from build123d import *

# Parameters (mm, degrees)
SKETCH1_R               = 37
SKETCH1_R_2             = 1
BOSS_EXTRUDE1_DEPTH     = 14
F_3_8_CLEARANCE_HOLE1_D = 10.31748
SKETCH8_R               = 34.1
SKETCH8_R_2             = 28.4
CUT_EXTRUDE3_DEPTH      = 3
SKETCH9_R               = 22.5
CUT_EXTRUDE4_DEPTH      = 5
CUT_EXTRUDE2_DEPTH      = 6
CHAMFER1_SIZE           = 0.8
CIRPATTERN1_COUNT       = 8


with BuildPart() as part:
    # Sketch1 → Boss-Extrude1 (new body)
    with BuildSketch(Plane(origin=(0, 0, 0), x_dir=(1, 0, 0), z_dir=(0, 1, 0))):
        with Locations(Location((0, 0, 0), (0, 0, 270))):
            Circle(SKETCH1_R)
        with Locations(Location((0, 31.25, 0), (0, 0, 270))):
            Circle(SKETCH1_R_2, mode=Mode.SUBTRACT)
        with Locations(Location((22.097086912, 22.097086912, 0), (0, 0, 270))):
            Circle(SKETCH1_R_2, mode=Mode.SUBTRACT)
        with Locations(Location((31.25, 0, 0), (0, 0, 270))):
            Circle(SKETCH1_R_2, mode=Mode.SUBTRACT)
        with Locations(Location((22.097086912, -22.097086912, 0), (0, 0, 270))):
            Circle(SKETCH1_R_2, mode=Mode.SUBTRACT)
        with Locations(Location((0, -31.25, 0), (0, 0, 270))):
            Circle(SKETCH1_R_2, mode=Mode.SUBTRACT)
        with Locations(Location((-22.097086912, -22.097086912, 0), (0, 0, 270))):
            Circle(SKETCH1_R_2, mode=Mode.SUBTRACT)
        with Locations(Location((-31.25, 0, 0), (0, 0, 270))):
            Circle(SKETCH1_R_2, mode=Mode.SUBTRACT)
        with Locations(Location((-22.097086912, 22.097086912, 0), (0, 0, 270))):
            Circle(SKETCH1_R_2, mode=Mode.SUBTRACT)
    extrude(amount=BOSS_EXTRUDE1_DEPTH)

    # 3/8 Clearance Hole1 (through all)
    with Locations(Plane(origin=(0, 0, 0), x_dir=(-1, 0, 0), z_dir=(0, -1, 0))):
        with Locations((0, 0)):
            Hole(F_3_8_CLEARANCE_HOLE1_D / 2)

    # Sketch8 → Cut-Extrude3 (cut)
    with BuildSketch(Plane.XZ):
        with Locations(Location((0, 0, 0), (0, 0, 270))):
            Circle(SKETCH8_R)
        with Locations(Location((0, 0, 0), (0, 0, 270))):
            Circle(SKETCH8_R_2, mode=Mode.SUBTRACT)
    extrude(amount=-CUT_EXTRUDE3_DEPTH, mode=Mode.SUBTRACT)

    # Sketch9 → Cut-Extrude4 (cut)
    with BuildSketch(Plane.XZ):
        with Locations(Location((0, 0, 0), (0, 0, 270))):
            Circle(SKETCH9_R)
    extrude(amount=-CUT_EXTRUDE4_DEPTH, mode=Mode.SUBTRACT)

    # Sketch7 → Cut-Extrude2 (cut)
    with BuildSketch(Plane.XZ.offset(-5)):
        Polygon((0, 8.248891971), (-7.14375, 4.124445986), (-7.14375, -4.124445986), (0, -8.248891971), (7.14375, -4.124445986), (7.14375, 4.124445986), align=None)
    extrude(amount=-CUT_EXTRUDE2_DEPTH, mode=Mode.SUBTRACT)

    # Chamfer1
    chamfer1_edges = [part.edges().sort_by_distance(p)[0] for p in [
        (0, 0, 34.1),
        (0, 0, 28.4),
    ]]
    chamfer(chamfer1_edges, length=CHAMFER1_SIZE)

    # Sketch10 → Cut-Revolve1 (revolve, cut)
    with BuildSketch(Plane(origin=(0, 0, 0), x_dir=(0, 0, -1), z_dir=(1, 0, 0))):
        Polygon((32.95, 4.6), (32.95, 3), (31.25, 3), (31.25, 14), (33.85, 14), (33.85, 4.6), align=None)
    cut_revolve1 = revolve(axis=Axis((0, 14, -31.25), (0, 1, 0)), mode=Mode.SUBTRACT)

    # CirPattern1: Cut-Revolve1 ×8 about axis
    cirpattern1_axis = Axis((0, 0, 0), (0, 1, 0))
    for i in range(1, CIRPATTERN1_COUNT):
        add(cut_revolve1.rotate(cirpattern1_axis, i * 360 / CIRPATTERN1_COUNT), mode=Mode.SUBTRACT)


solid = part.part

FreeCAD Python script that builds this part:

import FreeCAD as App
import Part
import Sketcher
from FreeCAD import Vector
Q = App.Units.Quantity


def edges_at(feature, points):
    """Names of the edges that pass closest to the given points."""
    edges = feature.Shape.Edges
    near = lambda p: min(range(len(edges)), key=lambda i: edges[i].distToShape(Part.Vertex(*p))[0])
    return sorted({f"Edge{near(p) + 1}" for p in points})


def add_polygon(sketch, points):
    """Adds a closed chain of lines whose ends are joined by coincident constraints."""
    first, n = sketch.GeometryCount, len(points)
    for a, b in zip(points, points[1:] + points[:1]):
        sketch.addGeometry(Part.LineSegment(App.Vector(*a, 0), App.Vector(*b, 0)), False)
    for i in range(n):
        sketch.addConstraint(Sketcher.Constraint("Coincident", first + i, 2, first + (i + 1) % n, 1))

doc = App.newDocument("Part")
body = doc.addObject("PartDesign::Body", "Body")

# Sketch on XZ plane
sketch1 = body.newObject("Sketcher::SketchObject", "Sketch")
sketch1.AttachmentSupport = (doc.getObject("XZ_Plane"), [""])
sketch1.MapMode = "FlatFace"
sketch1.addGeometry([
    Part.Circle(Vector(0, 0, 0), Vector(0, 0, 1), 37),  # 0
    Part.Circle(Vector(-22.1, -22.1, 0), Vector(0, 0, 1), 1),  # 1
    Part.Circle(Vector(0, -31.2, 0), Vector(0, 0, 1), 1),  # 2
    Part.Circle(Vector(-31.2, 0, 0), Vector(0, 0, 1), 1),  # 3
    Part.Circle(Vector(-22.1, 22.1, 0), Vector(0, 0, 1), 1),  # 4
    Part.Circle(Vector(22.1, -22.1, 0), Vector(0, 0, 1), 1),  # 5
    Part.Circle(Vector(31.2, 0, 0), Vector(0, 0, 1), 1),  # 6
    Part.Circle(Vector(0, 31.2, 0), Vector(0, 0, 1), 1),  # 7
    Part.Circle(Vector(22.1, 22.1, 0), Vector(0, 0, 1), 1),  # 8
], False)
sketch1.addConstraint([
    Sketcher.Constraint("Coincident", 0, 3, -1, 1),
    Sketcher.Constraint("Equal", 1, 2),
    Sketcher.Constraint("Equal", 2, 3),
    Sketcher.Constraint("Equal", 3, 4),
    Sketcher.Constraint("Equal", 4, 5),
    Sketcher.Constraint("Equal", 5, 6),
    Sketcher.Constraint("Equal", 6, 7),
    Sketcher.Constraint("Equal", 7, 8),
    Sketcher.Constraint("Symmetric", 4, 3, 5, 3, -1, 1),
    Sketcher.Constraint("Symmetric", 3, 3, 6, 3, -1, 1),
    Sketcher.Constraint("Symmetric", 2, 3, 7, 3, -1, 1),
    Sketcher.Constraint("Symmetric", 1, 3, 8, 3, -1, 1),
    Sketcher.Constraint("Symmetric", 1, 3, 5, 3, -2),
    Sketcher.Constraint("PointOnObject", 2, 3, -2),
    Sketcher.Constraint("PointOnObject", 3, 3, -1),
    Sketcher.Constraint("Diameter", 0, 74.0),
    Sketcher.Constraint("Diameter", 1, 2.0),
    Sketcher.Constraint("DistanceY", 2, 3, -1, 1, 31.25),
    Sketcher.Constraint("DistanceX", 3, 3, -1, 1, 31.25),
    Sketcher.Constraint("DistanceX", 1, 3, -1, 1, 22.097087),
    Sketcher.Constraint("DistanceY", 1, 3, -1, 1, 22.097087),
])
pad1 = body.newObject("PartDesign::Pad", "Pad")
pad1.Profile = sketch1
pad1.Length = 14
pad1.Reversed = True

# Sketch on XZ plane
sketch2 = body.newObject("Sketcher::SketchObject", "Sketch001")
sketch2.AttachmentSupport = (doc.getObject("XZ_Plane"), [""])
sketch2.MapMode = "FlatFace"
sketch2.addGeometry(Part.Circle(Vector(0, 0, 0), Vector(0, 0, 1), 5), False)
sketch2.addConstraint([
    Sketcher.Constraint("Coincident", 0, 3, -1, 1),
    Sketcher.Constraint("Diameter", 0, 10.31748),
])
doc.recompute()
hole = body.newObject("PartDesign::Hole", "Hole")
hole.Profile = sketch2
hole.ThreadType = "None"
hole.Diameter = 10.31748
hole.DepthType = "ThroughAll"

# Sketch on XZ plane
sketch3 = body.newObject("Sketcher::SketchObject", "Sketch002")
sketch3.AttachmentSupport = (doc.getObject("XZ_Plane"), [""])
sketch3.MapMode = "FlatFace"
sketch3.addGeometry([
    Part.Circle(Vector(0, 0, 0), Vector(0, 0, 1), 34),
    Part.Circle(Vector(0, 0, 0), Vector(0, 0, 1), 28),
], False)
sketch3.addConstraint([
    Sketcher.Constraint("Coincident", 0, 3, -1, 1),
    Sketcher.Constraint("Coincident", 1, 3, -1, 1),
    Sketcher.Constraint("Diameter", 0, 68.2),
    Sketcher.Constraint("Diameter", 1, 56.8),
])
pocket1 = body.newObject("PartDesign::Pocket", "Pocket")
pocket1.Profile = sketch3
pocket1.Length = 3

# Sketch on XZ plane
sketch4 = body.newObject("Sketcher::SketchObject", "Sketch003")
sketch4.AttachmentSupport = (doc.getObject("XZ_Plane"), [""])
sketch4.MapMode = "FlatFace"
sketch4.addGeometry(Part.Circle(Vector(0, 0, 0), Vector(0, 0, 1), 22), False)
sketch4.addConstraint([
    Sketcher.Constraint("Coincident", 0, 3, -1, 1),
    Sketcher.Constraint("Diameter", 0, 45.0),
])
pocket2 = body.newObject("PartDesign::Pocket", "Pocket001")
pocket2.Profile = sketch4
pocket2.Length = 5

# Sketch on XZ plane
sketch5 = body.newObject("Sketcher::SketchObject", "Sketch004")
sketch5.AttachmentSupport = (doc.getObject("XZ_Plane"), [""])
sketch5.MapMode = "FlatFace"
sketch5.AttachmentOffset = App.Placement(Vector(0, 0, -5), App.Rotation())
add_polygon(sketch5, [(0, 8), (-7, 4), (-7, -4), (0, -8), (7, -4), (7, 4)])  # lines 0-5
sketch5.addConstraint([
    Sketcher.Constraint("Vertical", 1),
    Sketcher.Constraint("Vertical", 4),
    Sketcher.Constraint("Symmetric", 0, 2, 3, 2, -1, 1),
    Sketcher.Constraint("Symmetric", 2, 2, 5, 2, -1, 1),
    Sketcher.Constraint("PointOnObject", 2, 2, -2),
    Sketcher.Constraint("Parallel", 2, 5),
    Sketcher.Constraint("Horizontal", 1, 2, 3, 2),
    Sketcher.Constraint("Angle", 0, Q("-150 deg")),
    Sketcher.Constraint("DistanceY", 1, 2, 1, 1, 8.248892),
    Sketcher.Constraint("DistanceX", 1, 2, 3, 2, 14.2875),
])
pocket3 = body.newObject("PartDesign::Pocket", "Pocket002")
pocket3.Profile = sketch5
pocket3.Length = 6
doc.recompute()

chamfer = body.newObject("PartDesign::Chamfer", "Chamfer")
chamfer.Base = (pocket3, edges_at(pocket3, [(0, 0, 34.1), (0, 0, 28.4)]))
chamfer.Size = 0.8

# Sketch on YZ plane
sketch6 = body.newObject("Sketcher::SketchObject", "Sketch005")
sketch6.AttachmentSupport = (doc.getObject("YZ_Plane"), [""])
sketch6.MapMode = "FlatFace"
add_polygon(sketch6, [(3, -33), (4.6, -33), (4.6, -33.9), (14, -33.9), (14, -31.2), (3, -31.2)])  # lines 0-5
sketch6.addGeometry(Part.LineSegment(Vector(3, -31.2, 0), Vector(14, -31.2, 0)), True)  # axis
sketch6.addConstraint([
    Sketcher.Constraint("Horizontal", 0),
    Sketcher.Constraint("Vertical", 1),
    Sketcher.Constraint("Horizontal", 2),
    Sketcher.Constraint("Vertical", 3),
    Sketcher.Constraint("Horizontal", 4),
    Sketcher.Constraint("Vertical", 5),
    Sketcher.Constraint("Horizontal", 6),
    Sketcher.Constraint("Coincident", 6, 1, 4, 2),
    Sketcher.Constraint("Vertical", 2, 2, 6, 2),
    Sketcher.Constraint("DistanceX", 4, 2, 4, 1, 11.0),
    Sketcher.Constraint("DistanceX", 0, 1, 0, 2, 1.6),
    Sketcher.Constraint("DistanceY", 1, 2, 1, 1, 0.9),
    Sketcher.Constraint("DistanceY", 3, 1, 3, 2, 2.6),
    Sketcher.Constraint("DistanceX", -1, 1, 2, 2, 14.0),
    Sketcher.Constraint("DistanceY", 0, 2, -1, 1, 32.95),
])
groove = body.newObject("PartDesign::Groove", "Groove")
groove.Profile = sketch6
groove.ReferenceAxis = (sketch6, ["Axis0"])
groove.Angle = 360
doc.recompute()

polarpattern = body.newObject("PartDesign::PolarPattern", "PolarPattern")
polarpattern.Originals = [groove]
polarpattern.Axis = (doc.getObject("Y_Axis"), [""])
polarpattern.Angle = 360
polarpattern.Occurrences = 8
body.Tip = polarpattern

doc.recompute()
